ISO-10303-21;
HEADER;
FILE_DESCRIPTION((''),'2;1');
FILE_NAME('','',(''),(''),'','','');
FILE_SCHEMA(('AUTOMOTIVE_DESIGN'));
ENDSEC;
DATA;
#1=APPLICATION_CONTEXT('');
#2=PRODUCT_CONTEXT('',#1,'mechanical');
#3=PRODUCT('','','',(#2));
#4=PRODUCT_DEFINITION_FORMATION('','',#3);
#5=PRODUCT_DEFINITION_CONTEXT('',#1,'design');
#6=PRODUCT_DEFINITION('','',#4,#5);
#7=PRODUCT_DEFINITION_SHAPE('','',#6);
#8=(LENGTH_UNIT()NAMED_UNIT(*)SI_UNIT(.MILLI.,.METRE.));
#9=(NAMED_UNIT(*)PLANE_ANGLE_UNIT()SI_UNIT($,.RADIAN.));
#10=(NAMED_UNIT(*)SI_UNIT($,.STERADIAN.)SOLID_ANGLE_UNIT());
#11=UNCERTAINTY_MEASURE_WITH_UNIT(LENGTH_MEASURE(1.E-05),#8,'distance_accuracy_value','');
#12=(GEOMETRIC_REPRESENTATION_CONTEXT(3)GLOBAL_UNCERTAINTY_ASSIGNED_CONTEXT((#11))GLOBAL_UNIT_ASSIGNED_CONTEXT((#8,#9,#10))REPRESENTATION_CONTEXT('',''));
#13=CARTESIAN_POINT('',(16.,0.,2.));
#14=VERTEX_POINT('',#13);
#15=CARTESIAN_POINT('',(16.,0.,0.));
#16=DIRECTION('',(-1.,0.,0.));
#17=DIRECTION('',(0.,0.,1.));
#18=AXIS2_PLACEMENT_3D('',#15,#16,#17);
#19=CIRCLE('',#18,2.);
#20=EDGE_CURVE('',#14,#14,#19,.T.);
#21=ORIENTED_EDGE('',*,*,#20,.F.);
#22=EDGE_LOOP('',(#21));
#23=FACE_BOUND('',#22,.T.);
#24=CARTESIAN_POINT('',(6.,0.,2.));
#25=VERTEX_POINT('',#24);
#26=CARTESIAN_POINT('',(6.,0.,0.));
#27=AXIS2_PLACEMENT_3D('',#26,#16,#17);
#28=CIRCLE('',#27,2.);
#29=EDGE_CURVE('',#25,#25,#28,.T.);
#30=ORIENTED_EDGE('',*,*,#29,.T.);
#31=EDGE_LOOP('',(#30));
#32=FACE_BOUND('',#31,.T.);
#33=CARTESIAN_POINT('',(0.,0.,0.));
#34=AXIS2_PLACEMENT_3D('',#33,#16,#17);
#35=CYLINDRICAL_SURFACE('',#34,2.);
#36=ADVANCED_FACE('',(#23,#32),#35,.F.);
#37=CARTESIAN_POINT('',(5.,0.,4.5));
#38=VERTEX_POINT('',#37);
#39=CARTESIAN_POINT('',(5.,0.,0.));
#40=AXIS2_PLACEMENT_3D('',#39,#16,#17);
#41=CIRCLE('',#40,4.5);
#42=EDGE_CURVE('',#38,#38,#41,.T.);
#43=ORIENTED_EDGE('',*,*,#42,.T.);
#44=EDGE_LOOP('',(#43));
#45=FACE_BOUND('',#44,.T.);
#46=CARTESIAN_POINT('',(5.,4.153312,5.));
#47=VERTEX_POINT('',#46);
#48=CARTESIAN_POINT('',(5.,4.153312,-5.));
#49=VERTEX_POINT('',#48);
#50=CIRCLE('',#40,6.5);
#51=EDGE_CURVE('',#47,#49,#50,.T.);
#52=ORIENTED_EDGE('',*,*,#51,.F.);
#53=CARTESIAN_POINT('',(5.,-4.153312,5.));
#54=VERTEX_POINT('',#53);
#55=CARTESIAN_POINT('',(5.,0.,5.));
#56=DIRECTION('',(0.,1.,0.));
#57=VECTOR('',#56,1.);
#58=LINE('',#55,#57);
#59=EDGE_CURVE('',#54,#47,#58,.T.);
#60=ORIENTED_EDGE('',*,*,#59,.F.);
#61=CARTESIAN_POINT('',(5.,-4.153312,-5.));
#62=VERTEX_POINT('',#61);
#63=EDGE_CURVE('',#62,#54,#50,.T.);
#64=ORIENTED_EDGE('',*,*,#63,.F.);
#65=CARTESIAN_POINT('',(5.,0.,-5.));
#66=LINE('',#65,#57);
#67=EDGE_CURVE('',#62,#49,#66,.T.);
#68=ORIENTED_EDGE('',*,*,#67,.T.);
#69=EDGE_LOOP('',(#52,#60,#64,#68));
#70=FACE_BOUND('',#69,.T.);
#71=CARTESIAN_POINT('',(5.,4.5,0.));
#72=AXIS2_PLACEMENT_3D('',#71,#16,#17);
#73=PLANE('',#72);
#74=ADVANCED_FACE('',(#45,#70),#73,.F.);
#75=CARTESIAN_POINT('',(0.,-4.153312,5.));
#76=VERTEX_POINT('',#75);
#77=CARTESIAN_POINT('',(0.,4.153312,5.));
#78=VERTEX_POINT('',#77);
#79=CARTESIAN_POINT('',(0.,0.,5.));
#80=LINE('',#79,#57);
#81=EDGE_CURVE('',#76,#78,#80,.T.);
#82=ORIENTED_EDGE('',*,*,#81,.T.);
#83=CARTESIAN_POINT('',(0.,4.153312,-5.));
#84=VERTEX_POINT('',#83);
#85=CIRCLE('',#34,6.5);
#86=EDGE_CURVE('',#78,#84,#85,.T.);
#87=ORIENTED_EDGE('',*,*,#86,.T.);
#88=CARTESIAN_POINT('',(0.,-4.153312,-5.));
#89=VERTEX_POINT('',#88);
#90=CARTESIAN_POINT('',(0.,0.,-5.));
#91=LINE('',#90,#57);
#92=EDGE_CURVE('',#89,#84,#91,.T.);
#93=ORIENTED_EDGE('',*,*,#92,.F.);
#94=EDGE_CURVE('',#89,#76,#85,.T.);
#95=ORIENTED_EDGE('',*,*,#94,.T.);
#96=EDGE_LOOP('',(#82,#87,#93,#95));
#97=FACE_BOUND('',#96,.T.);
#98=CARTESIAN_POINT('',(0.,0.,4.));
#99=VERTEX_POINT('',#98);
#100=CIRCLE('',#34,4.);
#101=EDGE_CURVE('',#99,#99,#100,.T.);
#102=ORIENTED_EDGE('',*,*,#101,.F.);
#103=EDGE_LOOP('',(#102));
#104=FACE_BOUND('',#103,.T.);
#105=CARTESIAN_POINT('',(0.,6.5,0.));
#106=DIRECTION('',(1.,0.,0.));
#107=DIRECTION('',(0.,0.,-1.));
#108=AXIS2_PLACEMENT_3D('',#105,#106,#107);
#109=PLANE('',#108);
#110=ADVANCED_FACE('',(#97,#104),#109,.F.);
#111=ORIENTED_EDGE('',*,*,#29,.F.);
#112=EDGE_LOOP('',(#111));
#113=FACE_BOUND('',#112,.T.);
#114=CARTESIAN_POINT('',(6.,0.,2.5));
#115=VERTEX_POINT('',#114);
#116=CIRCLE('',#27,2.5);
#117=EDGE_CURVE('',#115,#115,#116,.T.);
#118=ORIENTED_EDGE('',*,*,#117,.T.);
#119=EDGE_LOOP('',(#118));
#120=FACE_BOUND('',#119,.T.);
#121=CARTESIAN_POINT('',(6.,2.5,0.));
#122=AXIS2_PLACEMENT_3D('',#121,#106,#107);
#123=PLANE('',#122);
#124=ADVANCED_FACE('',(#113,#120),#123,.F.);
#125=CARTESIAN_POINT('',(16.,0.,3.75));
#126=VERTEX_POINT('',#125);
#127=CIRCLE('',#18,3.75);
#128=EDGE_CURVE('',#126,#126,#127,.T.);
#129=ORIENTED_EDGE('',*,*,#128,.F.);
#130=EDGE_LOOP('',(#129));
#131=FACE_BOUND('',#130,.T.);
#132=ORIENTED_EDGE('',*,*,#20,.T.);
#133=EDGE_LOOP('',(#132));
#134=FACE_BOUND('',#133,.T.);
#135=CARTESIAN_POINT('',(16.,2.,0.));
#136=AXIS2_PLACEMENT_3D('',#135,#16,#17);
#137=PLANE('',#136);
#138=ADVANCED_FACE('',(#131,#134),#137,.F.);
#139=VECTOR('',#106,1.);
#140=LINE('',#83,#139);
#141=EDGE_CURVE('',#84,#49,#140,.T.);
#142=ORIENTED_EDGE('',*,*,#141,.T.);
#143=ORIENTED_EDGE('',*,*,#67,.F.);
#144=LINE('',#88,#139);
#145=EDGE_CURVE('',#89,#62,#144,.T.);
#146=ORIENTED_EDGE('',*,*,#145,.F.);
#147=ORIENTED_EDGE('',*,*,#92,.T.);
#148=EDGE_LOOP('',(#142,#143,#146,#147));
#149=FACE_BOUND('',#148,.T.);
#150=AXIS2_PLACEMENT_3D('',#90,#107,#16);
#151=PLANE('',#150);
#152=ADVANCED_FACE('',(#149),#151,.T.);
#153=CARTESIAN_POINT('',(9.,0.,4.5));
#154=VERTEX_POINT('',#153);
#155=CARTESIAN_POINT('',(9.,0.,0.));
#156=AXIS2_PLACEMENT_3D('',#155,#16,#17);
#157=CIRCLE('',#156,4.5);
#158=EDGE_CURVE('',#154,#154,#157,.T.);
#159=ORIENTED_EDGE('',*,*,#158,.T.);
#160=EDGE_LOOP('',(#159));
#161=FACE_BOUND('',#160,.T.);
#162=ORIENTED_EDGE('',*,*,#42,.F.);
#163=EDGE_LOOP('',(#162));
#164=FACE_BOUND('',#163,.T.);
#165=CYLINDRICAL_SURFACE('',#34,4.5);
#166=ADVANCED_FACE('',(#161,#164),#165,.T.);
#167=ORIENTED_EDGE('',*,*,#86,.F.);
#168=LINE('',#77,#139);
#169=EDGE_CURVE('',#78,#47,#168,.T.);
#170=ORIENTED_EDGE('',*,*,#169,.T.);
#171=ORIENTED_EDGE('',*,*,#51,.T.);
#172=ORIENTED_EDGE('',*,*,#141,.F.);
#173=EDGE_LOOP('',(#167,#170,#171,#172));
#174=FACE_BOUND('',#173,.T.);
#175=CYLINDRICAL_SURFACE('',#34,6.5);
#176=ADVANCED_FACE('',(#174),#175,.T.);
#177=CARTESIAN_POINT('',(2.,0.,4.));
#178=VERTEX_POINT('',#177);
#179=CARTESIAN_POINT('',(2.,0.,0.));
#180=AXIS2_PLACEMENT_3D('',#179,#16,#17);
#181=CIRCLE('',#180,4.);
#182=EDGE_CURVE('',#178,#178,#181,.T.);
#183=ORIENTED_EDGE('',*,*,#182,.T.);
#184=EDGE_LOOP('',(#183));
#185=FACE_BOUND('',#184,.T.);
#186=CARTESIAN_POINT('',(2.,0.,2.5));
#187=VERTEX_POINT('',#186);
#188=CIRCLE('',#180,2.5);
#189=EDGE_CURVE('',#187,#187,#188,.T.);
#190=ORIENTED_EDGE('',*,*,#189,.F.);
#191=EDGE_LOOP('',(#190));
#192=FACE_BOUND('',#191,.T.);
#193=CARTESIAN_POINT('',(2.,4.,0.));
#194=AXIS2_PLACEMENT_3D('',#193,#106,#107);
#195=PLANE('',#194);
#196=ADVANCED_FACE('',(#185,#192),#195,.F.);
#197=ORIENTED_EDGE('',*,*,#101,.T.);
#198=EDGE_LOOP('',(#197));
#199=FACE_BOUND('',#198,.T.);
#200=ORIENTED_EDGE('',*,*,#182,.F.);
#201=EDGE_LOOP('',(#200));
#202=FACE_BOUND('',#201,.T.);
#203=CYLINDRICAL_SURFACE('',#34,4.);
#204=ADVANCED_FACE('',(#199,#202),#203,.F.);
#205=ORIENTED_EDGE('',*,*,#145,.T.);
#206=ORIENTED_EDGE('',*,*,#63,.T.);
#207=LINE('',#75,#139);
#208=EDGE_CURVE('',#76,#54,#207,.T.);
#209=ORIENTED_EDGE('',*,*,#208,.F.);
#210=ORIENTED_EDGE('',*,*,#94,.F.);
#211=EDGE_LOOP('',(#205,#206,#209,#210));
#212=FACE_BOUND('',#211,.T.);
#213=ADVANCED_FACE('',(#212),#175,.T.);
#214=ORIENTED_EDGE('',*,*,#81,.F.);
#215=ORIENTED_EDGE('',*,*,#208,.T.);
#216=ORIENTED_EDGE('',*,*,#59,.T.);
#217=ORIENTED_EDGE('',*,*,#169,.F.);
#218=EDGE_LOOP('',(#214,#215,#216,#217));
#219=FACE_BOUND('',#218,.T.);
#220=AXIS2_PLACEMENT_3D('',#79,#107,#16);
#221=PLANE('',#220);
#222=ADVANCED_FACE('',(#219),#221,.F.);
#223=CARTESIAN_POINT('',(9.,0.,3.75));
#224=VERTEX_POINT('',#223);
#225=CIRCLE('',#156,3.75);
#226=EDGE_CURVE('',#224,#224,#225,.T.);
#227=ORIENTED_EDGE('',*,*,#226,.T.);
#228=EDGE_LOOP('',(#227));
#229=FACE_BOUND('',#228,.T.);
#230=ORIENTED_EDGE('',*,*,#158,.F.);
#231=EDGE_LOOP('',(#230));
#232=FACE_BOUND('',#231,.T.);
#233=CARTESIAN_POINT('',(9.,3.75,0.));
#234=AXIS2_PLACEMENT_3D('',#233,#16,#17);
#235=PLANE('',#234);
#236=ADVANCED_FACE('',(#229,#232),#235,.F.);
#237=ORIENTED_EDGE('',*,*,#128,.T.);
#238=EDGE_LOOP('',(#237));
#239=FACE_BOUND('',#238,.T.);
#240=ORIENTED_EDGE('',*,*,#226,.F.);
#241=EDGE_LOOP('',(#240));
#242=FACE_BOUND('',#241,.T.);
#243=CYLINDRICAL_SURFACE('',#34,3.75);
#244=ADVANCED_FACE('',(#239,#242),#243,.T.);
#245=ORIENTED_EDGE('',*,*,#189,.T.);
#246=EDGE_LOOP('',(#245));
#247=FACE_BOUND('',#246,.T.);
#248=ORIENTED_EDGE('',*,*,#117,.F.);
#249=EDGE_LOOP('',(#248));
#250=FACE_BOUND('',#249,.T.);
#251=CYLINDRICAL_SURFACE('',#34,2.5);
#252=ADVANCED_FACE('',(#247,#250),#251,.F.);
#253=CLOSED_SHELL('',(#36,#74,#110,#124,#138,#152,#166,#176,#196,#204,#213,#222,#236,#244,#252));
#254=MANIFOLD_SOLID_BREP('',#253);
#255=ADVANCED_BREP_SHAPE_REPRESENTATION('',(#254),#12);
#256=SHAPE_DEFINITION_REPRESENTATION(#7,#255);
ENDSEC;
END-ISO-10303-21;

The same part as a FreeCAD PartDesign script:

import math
import FreeCAD as App
import Part
import Sketcher

V = App.Vector


def add_polygon(sketch, points):
    """Adds a closed chain of lines whose ends are joined by coincident constraints."""
    first, n = sketch.GeometryCount, len(points)
    for a, b in zip(points, points[1:] + points[:1]):
        sketch.addGeometry(Part.LineSegment(App.Vector(*a, 0), App.Vector(*b, 0)), False)
    for i in range(n):
        sketch.addConstraint(Sketcher.Constraint("Coincident", first + i, 2, first + (i + 1) % n, 1))

doc = App.newDocument("Part")
body = doc.addObject("PartDesign::Body", "Body")

# Sketch on XY plane
sketch1 = body.newObject("Sketcher::SketchObject", "Sketch")
sketch1.AttachmentSupport = (doc.getObject("XY_Plane"), [""])
sketch1.MapMode = "FlatFace"
add_polygon(sketch1, [(0, 4), (2, 4), (2, 2.5), (6, 2.5), (6, 2), (16, 2), (16, 3.8), (9, 3.8), (9, 4.5), (5, 4.5), (5, 6.5), (0, 6.5)])  # lines 0-11
sketch1.addConstraint([
    Sketcher.Constraint("Horizontal", 0),
    Sketcher.Constraint("Vertical", 1),
    Sketcher.Constraint("Horizontal", 2),
    Sketcher.Constraint("Vertical", 3),
    Sketcher.Constraint("Horizontal", 4),
    Sketcher.Constraint("Vertical", 5),
    Sketcher.Constraint("Horizontal", 6),
    Sketcher.Constraint("Vertical", 7),
    Sketcher.Constraint("Horizontal", 8),
    Sketcher.Constraint("Vertical", 9),
    Sketcher.Constraint("Horizontal", 10),
    Sketcher.Constraint("Vertical", 11),
    Sketcher.Constraint("PointOnObject", 10, 2, -2),
    Sketcher.Constraint("Equal", 2, 8),
    Sketcher.Constraint("Equal", 0, 9),
    Sketcher.Constraint("DistanceX", 0, 1, 0, 2, 2.0),
    Sketcher.Constraint("DistanceX", 2, 1, 2, 2, 4.0),
    Sketcher.Constraint("DistanceX", 4, 1, 4, 2, 10.0),
    Sketcher.Constraint("DistanceX", 6, 2, 6, 1, 7.0),
    Sketcher.Constraint("DistanceY", 1, 2, 1, 1, 1.5),
    Sketcher.Constraint("DistanceY", 3, 2, 3, 1, 0.5),
    Sketcher.Constraint("DistanceY", 11, 2, 11, 1, 2.5),
    Sketcher.Constraint("DistanceY", -1, 1, 0, 2, 4.0),
    Sketcher.Constraint("DistanceY", 5, 1, 5, 2, 1.75),
])
revolution = body.newObject("PartDesign::Revolution", "Revolution")
revolution.Profile = sketch1
revolution.ReferenceAxis = (sketch1, ["H_Axis"])
revolution.Angle = 360

# Sketch on YZ plane
sketch2 = body.newObject("Sketcher::SketchObject", "Sketch001")
sketch2.AttachmentSupport = (doc.getObject("YZ_Plane"), [""])
sketch2.MapMode = "FlatFace"
sketch2.AttachmentOffset = App.Placement(V(0, 0, 5), App.Rotation())
sketch2.addGeometry([
    Part.ArcOfCircle(Part.Circle(V(0, 0, 0), V(0, 0, 1), 6.5), math.radians(50), math.radians(130)),  # 0
    Part.LineSegment(V(-4.2, 5, 0), V(4.2, 5, 0)),  # 1
    Part.LineSegment(V(4.2, -5, 0), V(-4.2, -5, 0)),  # 2
    Part.ArcOfCircle(Part.Circle(V(0, 0, 0), V(0, 0, 1), 6.5), math.radians(-130), math.radians(-90)),  # 3
    Part.ArcOfCircle(Part.Circle(V(0, 0, 0), V(0, 0, 1), 6.5), math.radians(-90), math.radians(-50)),  # 4
], False)
sketch2.addConstraint([
    Sketcher.Constraint("Coincident", 0, 1, 1, 2),
    Sketcher.Constraint("Coincident", 1, 1, 0, 2),
    Sketcher.Constraint("Coincident", 2, 2, 3, 1),
    Sketcher.Constraint("Tangent", 3, 2, 4, 1),
    Sketcher.Constraint("Coincident", 4, 2, 2, 1),
    Sketcher.Constraint("Horizontal", 1),
    Sketcher.Constraint("Horizontal", 2),
    Sketcher.Constraint("Coincident", 0, 3, -1, 1),
    Sketcher.Constraint("Coincident", 3, 3, -1, 1),
    Sketcher.Constraint("Equal", 0, 3),
    Sketcher.Constraint("Equal", 3, 4),
    Sketcher.Constraint("PointOnObject", 3, 2, -2),
    Sketcher.Constraint("Vertical", 1, 1, 2, 2),
    Sketcher.Constraint("Radius", 0, 6.5),
    Sketcher.Constraint("DistanceY", -1, 1, 0, 1, 5.0),
])
pocket1 = body.newObject("PartDesign::Pocket", "Pocket")
pocket1.Profile = sketch2
pocket1.Type = "ThroughAll"

doc.recompute()
